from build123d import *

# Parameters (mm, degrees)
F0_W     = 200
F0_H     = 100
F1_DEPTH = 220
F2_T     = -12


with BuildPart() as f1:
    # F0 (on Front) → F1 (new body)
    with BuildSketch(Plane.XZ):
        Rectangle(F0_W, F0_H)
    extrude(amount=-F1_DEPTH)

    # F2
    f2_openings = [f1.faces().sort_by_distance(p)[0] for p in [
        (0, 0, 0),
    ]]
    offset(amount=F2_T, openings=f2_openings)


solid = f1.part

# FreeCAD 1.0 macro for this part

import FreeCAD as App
import Part
import Sketcher

V = App.Vector


def faces_at(feature, points):
    """Names of the faces that lie closest to the given points."""
    faces = feature.Shape.Faces
    near = lambda p: min(range(len(faces)), key=lambda i: faces[i].distToShape(Part.Vertex(*p))[0])
    return sorted({f"Face{near(p) + 1}" for p in points})


def add_polygon(sketch, points):
    """Adds a closed chain of lines whose ends are joined by coincident constraints."""
    first, n = sketch.GeometryCount, len(points)
    for a, b in zip(points, points[1:] + points[:1]):
        sketch.addGeometry(Part.LineSegment(App.Vector(*a, 0), App.Vector(*b, 0)), False)
    for i in range(n):
        sketch.addConstraint(Sketcher.Constraint("Coincident", first + i, 2, first + (i + 1) % n, 1))

doc = App.newDocument("Part")
body = doc.addObject("PartDesign::Body", "Body")

# Sketch on XZ plane
sketch1 = body.newObject("Sketcher::SketchObject", "Sketch")
sketch1.AttachmentSupport = (doc.getObject("XZ_Plane"), [""])
sketch1.MapMode = "FlatFace"
add_polygon(sketch1, [(-100, 50), (-100, -50), (100, -50), (100, 50)])  # lines 0-3
sketch1.addConstraint(Sketcher.Constraint("Vertical", 0))
sketch1.addConstraint(Sketcher.Constraint("Horizontal", 1))
sketch1.addConstraint(Sketcher.Constraint("Vertical", 2))
sketch1.addConstraint(Sketcher.Constraint("Horizontal", 3))
sketch1.addConstraint(Sketcher.Constraint("Symmetric", 0, 2, 2, 2, -1, 1))
sketch1.addConstraint(Sketcher.Constraint("DistanceX", 1, 1, 1, 2, 200.0))
sketch1.addConstraint(Sketcher.Constraint("DistanceY", 0, 2, 0, 1, 100.0))
pad1 = body.newObject("PartDesign::Pad", "Pad")
pad1.Profile = sketch1
pad1.Length = 220
pad1.Reversed = True
doc.recompute()

thickness = body.newObject("PartDesign::Thickness", "Thickness")
thickness.Base = (pad1, faces_at(pad1, [(0, 0, 0)]))
thickness.Value = 12
thickness.Reversed = True
thickness.Join = "Arc"

doc.recompute()
